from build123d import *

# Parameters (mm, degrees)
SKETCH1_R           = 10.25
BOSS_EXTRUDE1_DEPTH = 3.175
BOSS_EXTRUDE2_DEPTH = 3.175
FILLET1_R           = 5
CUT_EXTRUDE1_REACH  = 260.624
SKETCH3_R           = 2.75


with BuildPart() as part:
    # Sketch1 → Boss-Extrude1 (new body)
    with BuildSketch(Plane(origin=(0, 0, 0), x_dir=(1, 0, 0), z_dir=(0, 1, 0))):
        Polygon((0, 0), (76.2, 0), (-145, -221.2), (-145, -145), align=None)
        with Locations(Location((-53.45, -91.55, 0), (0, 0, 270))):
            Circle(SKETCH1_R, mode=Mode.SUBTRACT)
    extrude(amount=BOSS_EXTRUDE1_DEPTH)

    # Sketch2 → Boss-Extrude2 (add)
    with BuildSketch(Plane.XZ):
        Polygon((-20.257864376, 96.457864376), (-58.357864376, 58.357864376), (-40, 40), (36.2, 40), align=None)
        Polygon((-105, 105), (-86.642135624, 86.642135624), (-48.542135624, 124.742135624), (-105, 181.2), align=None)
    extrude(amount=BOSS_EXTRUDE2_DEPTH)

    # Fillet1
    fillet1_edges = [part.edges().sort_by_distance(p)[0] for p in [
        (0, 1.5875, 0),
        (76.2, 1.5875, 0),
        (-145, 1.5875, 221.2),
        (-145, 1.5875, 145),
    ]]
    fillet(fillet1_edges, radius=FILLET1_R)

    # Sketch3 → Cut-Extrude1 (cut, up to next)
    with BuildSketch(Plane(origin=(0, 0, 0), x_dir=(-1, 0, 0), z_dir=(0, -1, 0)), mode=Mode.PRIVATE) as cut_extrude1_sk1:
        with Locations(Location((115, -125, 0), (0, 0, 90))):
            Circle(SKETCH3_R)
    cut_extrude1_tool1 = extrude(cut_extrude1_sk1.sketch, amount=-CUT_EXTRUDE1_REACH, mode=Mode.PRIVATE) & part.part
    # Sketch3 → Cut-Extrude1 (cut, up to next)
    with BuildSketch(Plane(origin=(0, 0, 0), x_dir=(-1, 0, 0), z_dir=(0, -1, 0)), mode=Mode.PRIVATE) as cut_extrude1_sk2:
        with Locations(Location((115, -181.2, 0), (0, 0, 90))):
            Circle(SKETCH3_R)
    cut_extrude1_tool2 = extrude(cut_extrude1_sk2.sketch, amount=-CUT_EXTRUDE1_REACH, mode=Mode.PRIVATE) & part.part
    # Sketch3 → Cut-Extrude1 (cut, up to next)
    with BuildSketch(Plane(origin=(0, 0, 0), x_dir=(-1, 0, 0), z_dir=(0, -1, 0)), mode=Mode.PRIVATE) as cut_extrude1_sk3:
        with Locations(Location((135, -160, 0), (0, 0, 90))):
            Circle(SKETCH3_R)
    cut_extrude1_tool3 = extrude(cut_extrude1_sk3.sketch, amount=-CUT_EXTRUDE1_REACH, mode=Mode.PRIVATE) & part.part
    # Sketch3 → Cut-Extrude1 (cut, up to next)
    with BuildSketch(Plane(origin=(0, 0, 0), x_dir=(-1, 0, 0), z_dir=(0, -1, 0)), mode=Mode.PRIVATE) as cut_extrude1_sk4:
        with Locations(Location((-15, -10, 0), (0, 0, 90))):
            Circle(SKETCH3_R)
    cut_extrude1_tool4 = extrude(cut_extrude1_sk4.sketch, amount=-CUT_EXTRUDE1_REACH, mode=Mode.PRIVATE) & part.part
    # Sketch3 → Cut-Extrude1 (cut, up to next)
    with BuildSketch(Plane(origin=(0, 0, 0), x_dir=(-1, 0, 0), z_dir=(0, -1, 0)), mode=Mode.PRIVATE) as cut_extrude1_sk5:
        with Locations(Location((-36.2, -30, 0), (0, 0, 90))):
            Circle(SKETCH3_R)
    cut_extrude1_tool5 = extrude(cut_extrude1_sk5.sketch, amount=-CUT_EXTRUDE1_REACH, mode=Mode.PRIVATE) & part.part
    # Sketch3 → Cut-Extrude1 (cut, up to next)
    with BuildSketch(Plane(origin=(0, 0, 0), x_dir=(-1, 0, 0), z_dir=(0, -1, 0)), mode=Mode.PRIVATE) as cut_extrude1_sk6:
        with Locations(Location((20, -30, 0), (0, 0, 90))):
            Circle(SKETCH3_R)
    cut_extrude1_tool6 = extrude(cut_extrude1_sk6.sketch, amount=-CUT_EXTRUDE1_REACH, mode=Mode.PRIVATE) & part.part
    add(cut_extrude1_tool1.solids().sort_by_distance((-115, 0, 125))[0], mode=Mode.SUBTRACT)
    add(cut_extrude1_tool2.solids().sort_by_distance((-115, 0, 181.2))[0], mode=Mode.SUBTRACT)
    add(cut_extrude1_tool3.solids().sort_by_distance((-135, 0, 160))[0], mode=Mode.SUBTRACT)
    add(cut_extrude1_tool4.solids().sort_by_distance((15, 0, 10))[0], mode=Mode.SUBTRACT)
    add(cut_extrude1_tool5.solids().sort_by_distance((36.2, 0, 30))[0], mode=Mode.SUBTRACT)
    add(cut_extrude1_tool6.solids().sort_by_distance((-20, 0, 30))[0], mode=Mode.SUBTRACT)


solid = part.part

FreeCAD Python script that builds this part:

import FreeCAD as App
import Part
import Sketcher

V = App.Vector


def edges_at(feature, points):
    """Names of the edges that pass closest to the given points."""
    edges = feature.Shape.Edges
    near = lambda p: min(range(len(edges)), key=lambda i: edges[i].distToShape(Part.Vertex(*p))[0])
    return sorted({f"Edge{near(p) + 1}" for p in points})


def add_polygon(sketch, points):
    """Adds a closed chain of lines whose ends are joined by coincident constraints."""
    first, n = sketch.GeometryCount, len(points)
    for a, b in zip(points, points[1:] + points[:1]):
        sketch.addGeometry(Part.LineSegment(App.Vector(*a, 0), App.Vector(*b, 0)), False)
    for i in range(n):
        sketch.addConstraint(Sketcher.Constraint("Coincident", first + i, 2, first + (i + 1) % n, 1))

doc = App.newDocument("Part")
body = doc.addObject("PartDesign::Body", "Body")

sketch1 = body.newObject("Sketcher::SketchObject", "Sketch")
sketch1.AttachmentSupport = (doc.getObject("XZ_Plane"), [""])
sketch1.MapMode = "FlatFace"
add_polygon(sketch1, [(76.2, 0), (0, 0), (-145, 145), (-145, 221.2)])
sketch1.addGeometry(Part.Circle(V(-53.45, 91.55, 0), V(0, 0, 1), 10.25), False)
sketch1.addConstraint([
    Sketcher.Constraint("Horizontal", 0),
    Sketcher.Constraint("Vertical", 2),
    Sketcher.Constraint("Coincident", 0, 2, -1, 1),
    Sketcher.Constraint("Parallel", 1, 3),
    Sketcher.Constraint("Equal", 0, 2),
    Sketcher.Constraint("Diameter", 4, 20.5),
    Sketcher.Constraint("DistanceX", 0, 2, 0, 1, 76.2),
    Sketcher.Constraint("DistanceX", 1, 2, -1, 1, 145.0),
    Sketcher.Constraint("DistanceX", 4, 3, -1, 1, 53.45),
    Sketcher.Constraint("DistanceY", -1, 1, 4, 3, 91.55),
])
pad1 = body.newObject("PartDesign::Pad", "Pad")
pad1.Profile = sketch1
pad1.Length = 3.175
pad1.Reversed = True

sketch2 = body.newObject("Sketcher::SketchObject", "Sketch001")
sketch2.AttachmentSupport = (doc.getObject("XZ_Plane"), [""])
sketch2.MapMode = "FlatFace"
add_polygon(sketch2, [(-20.257864, 96.457864), (-58.357864, 58.357864), (-40, 40), (36.2, 40)])
add_polygon(sketch2, [(-105, 105), (-86.642136, 86.642136), (-48.542136, 124.742136), (-105, 181.2)])
sketch2.addConstraint([
    Sketcher.Constraint("Horizontal", 2),
    Sketcher.Constraint("Vertical", 7),
    Sketcher.Constraint("Perpendicular", 0, 1),
    Sketcher.Constraint("Parallel", 1, 3),
    Sketcher.Constraint("Parallel", 3, 4),
    Sketcher.Constraint("Perpendicular", 4, 5),
    Sketcher.Constraint("Perpendicular", 5, 6),
    Sketcher.Constraint("Equal", 2, 7),
    Sketcher.Constraint("Equal", 1, 4),
    Sketcher.Constraint("Equal", 0, 5),
    Sketcher.Constraint("DistanceX", 2, 1, 2, 2, 76.2),
    Sketcher.Constraint("DistanceX", 1, 2, -1, 1, 40.0),
    Sketcher.Constraint("DistanceY", -1, 1, 1, 2, 40.0),
    Sketcher.Constraint("DistanceX", 6, 2, -1, 1, 105.0),
    Sketcher.Constraint("DistanceY", -1, 1, 7, 2, 105.0),
    Sketcher.Constraint("Distance", 1, 25.961941),
])
pad2 = body.newObject("PartDesign::Pad", "Pad001")
pad2.Profile = sketch2
pad2.Length = 3.175
doc.recompute()

fillet = body.newObject("PartDesign::Fillet", "Fillet")
fillet.Base = (pad2, edges_at(pad2, [
    (0, 1.587, 0),
    (76.2, 1.587, 0),
    (-145, 1.587, 221.2),
    (-145, 1.587, 145),
]))
fillet.Radius = 5

sketch3 = body.newObject("Sketcher::SketchObject", "Sketch002")
sketch3.AttachmentSupport = (doc.getObject("XZ_Plane"), [""])
sketch3.MapMode = "FlatFace"
sketch3.addGeometry(Part.Circle(V(-115, 125, 0), V(0, 0, 1), 2.75), False)
sketch3.addConstraint([
    Sketcher.Constraint("Diameter", 0, 5.5),
    Sketcher.Constraint("DistanceX", 0, 3, -1, 1, 115.0),
    Sketcher.Constraint("DistanceY", -1, 1, 0, 3, 125.0),
])
pocket1 = body.newObject("PartDesign::Pocket", "Pocket")
pocket1.Profile = sketch3
pocket1.Type = "UpToFirst"

sketch4 = body.newObject("Sketcher::SketchObject", "Sketch003")
sketch4.AttachmentSupport = (doc.getObject("XZ_Plane"), [""])
sketch4.MapMode = "FlatFace"
sketch4.addGeometry(Part.Circle(V(-115, 181.2, 0), V(0, 0, 1), 2.75), False)
sketch4.addConstraint([
    Sketcher.Constraint("Diameter", 0, 5.5),
    Sketcher.Constraint("DistanceX", 0, 3, -1, 1, 115.0),
    Sketcher.Constraint("DistanceY", -1, 1, 0, 3, 181.2),
])
pocket2 = body.newObject("PartDesign::Pocket", "Pocket001")
pocket2.Profile = sketch4
pocket2.Type = "UpToFirst"

sketch5 = body.newObject("Sketcher::SketchObject", "Sketch004")
sketch5.AttachmentSupport = (doc.getObject("XZ_Plane"), [""])
sketch5.MapMode = "FlatFace"
sketch5.addGeometry(Part.Circle(V(-135, 160, 0), V(0, 0, 1), 2.75), False)
sketch5.addConstraint([
    Sketcher.Constraint("Diameter", 0, 5.5),
    Sketcher.Constraint("DistanceX", 0, 3, -1, 1, 135.0),
    Sketcher.Constraint("DistanceY", -1, 1, 0, 3, 160.0),
])
pocket3 = body.newObject("PartDesign::Pocket", "Pocket002")
pocket3.Profile = sketch5
pocket3.Type = "UpToFirst"

sketch6 = body.newObject("Sketcher::SketchObject", "Sketch005")
sketch6.AttachmentSupport = (doc.getObject("XZ_Plane"), [""])
sketch6.MapMode = "FlatFace"
sketch6.addGeometry(Part.Circle(V(15, 10, 0), V(0, 0, 1), 2.75), False)
sketch6.addConstraint([
    Sketcher.Constraint("Diameter", 0, 5.5),
    Sketcher.Constraint("DistanceX", -1, 1, 0, 3, 15.0),
    Sketcher.Constraint("DistanceY", -1, 1, 0, 3, 10.0),
])
pocket4 = body.newObject("PartDesign::Pocket", "Pocket003")
pocket4.Profile = sketch6
pocket4.Type = "UpToFirst"

sketch7 = body.newObject("Sketcher::SketchObject", "Sketch006")
sketch7.AttachmentSupport = (doc.getObject("XZ_Plane"), [""])
sketch7.MapMode = "FlatFace"
sketch7.addGeometry(Part.Circle(V(36.2, 30, 0), V(0, 0, 1), 2.75), False)
sketch7.addConstraint([
    Sketcher.Constraint("Diameter", 0, 5.5),
    Sketcher.Constraint("DistanceY", -1, 1, 0, 3, 30.0),
    Sketcher.Constraint("DistanceX", -1, 1, 0, 3, 36.2),
])
pocket5 = body.newObject("PartDesign::Pocket", "Pocket004")
pocket5.Profile = sketch7
pocket5.Type = "UpToFirst"

sketch8 = body.newObject("Sketcher::SketchObject", "Sketch007")
sketch8.AttachmentSupport = (doc.getObject("XZ_Plane"), [""])
sketch8.MapMode = "FlatFace"
sketch8.addGeometry(Part.Circle(V(-20, 30, 0), V(0, 0, 1), 2.75), False)
sketch8.addConstraint([
    Sketcher.Constraint("Diameter", 0, 5.5),
    Sketcher.Constraint("DistanceX", 0, 3, -1, 1, 20.0),
    Sketcher.Constraint("DistanceY", -1, 1, 0, 3, 30.0),
])
pocket6 = body.newObject("PartDesign::Pocket", "Pocket005")
pocket6.Profile = sketch8
pocket6.Type = "UpToFirst"

doc.recompute()
